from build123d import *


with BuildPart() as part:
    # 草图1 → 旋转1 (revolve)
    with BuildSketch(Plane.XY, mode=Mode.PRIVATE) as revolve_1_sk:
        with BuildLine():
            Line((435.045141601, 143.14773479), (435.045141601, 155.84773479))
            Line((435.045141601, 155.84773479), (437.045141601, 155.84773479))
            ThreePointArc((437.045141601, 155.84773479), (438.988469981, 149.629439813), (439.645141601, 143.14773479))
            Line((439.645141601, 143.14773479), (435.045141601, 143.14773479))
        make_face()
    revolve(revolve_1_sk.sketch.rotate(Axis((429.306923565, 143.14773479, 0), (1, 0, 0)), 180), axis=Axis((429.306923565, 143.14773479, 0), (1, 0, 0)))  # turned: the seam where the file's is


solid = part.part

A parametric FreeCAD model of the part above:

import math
import FreeCAD as App
import Part
import Sketcher
from FreeCAD import Vector

doc = App.newDocument("Part")
body = doc.addObject("PartDesign::Body", "Body")

# Sketch on XY plane
sketch1 = doc.addObject("Sketcher::SketchObject", "Sketch")
body.addObject(sketch1)
sketch1.AttachmentSupport = (doc.XY_Plane, [""])
sketch1.MapMode = "FlatFace"
sketch1.addGeometry([
    Part.LineSegment(Vector(435.045142, 155.847735, 0), Vector(435.045142, 143.147735, 0)),
    Part.LineSegment(Vector(435.045142, 143.147735, 0), Vector(439.645142, 143.147735, 0)),
    Part.ArcOfCircle(Part.Circle(Vector(407.327834, 143.147735, 0), Vector(0, 0, 1), 32.317308), math.radians(0), math.radians(23.139944)),
    Part.LineSegment(Vector(437.045142, 155.847735, 0), Vector(435.045142, 155.847735, 0)),
], False)
sketch1.addGeometry(Part.LineSegment(Vector(407.327834, 143.147735, 0), Vector(439.645142, 143.147735, 0)), True)  # axis
sketch1.addConstraint([
    Sketcher.Constraint("Coincident", 0, 2, 1, 1),
    Sketcher.Constraint("Coincident", 1, 2, 2, 1),
    Sketcher.Constraint("Coincident", 2, 2, 3, 1),
    Sketcher.Constraint("Coincident", 3, 2, 0, 1),
    Sketcher.Constraint("Vertical", 0),
    Sketcher.Constraint("Horizontal", 1),
    Sketcher.Constraint("Horizontal", 3),
    Sketcher.Constraint("Horizontal", 4),
    Sketcher.Constraint("Coincident", 4, 1, 2, 3),
    Sketcher.Constraint("Coincident", 4, 2, 1, 2),
    Sketcher.Constraint("DistanceX", 3, 2, 3, 1, 2.0),
    Sketcher.Constraint("DistanceX", 1, 1, 1, 2, 4.6),
    Sketcher.Constraint("DistanceY", 0, 2, 0, 1, 12.7),
    Sketcher.Constraint("DistanceX", -1, 1, 0, 2, 435.045142),
    Sketcher.Constraint("DistanceY", -1, 1, 2, 3, 143.147735),
])
revolution = doc.addObject("PartDesign::Revolution", "Revolution")
body.addObject(revolution)
revolution.Profile = sketch1
revolution.ReferenceAxis = (sketch1, ["Axis0"])
revolution.Angle = 360

doc.recompute()
